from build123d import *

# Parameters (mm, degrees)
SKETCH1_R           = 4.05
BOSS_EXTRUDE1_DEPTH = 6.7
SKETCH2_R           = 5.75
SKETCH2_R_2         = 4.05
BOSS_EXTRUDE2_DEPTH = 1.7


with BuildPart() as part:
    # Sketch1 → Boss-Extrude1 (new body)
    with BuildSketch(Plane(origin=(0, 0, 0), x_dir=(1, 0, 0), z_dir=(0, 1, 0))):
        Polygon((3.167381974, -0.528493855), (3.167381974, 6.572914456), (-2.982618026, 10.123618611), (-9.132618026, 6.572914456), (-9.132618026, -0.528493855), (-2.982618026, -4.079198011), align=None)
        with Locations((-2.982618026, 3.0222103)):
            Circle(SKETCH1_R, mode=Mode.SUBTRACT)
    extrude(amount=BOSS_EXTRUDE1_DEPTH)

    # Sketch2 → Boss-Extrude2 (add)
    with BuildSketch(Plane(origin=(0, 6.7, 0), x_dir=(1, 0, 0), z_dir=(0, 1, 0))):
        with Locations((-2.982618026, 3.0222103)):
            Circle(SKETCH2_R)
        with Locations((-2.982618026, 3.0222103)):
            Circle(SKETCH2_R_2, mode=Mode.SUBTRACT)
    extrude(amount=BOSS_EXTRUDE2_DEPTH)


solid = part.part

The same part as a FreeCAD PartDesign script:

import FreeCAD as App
import Part
import Sketcher

V = App.Vector
Q = App.Units.Quantity

doc = App.newDocument("Part")
body = doc.addObject("PartDesign::Body", "Body")

sketch1 = body.newObject("Sketcher::SketchObject", "Sketch")
sketch1.AttachmentSupport = (doc.getObject("XZ_Plane"), [""])
sketch1.MapMode = "FlatFace"
sketch1.addGeometry([
    Part.LineSegment(V(3.2, 0.5, 0), V(3.2, -6.6, 0)),
    Part.LineSegment(V(3.2, -6.6, 0), V(-3, -10.1, 0)),
    Part.LineSegment(V(-3, -10.1, 0), V(-9.1, -6.6, 0)),
    Part.LineSegment(V(-9.1, -6.6, 0), V(-9.1, 0.5, 0)),
    Part.LineSegment(V(-9.1, 0.5, 0), V(-3, 4.1, 0)),
    Part.LineSegment(V(-3, 4.1, 0), V(3.2, 0.5, 0)),
    Part.Circle(V(-3, -3, 0), V(0, 0, 1), 4),
], False)
sketch1.addConstraint([
    Sketcher.Constraint("Coincident", 0, 2, 1, 1),
    Sketcher.Constraint("Coincident", 1, 2, 2, 1),
    Sketcher.Constraint("Coincident", 2, 2, 3, 1),
    Sketcher.Constraint("Coincident", 3, 2, 4, 1),
    Sketcher.Constraint("Coincident", 4, 2, 5, 1),
    Sketcher.Constraint("Coincident", 5, 2, 0, 1),
    Sketcher.Constraint("Vertical", 0),
    Sketcher.Constraint("Vertical", 3),
    Sketcher.Constraint("Parallel", 1, 4),
    Sketcher.Constraint("Parallel", 2, 5),
    Sketcher.Constraint("Horizontal", 0, 2, 2, 2),
    Sketcher.Constraint("Horizontal", 3, 2, 5, 2),
    Sketcher.Constraint("Vertical", 6, 3, 1, 2),
    Sketcher.Constraint("Vertical", 1, 2, 4, 2),
    Sketcher.Constraint("Diameter", 6, 8.1),
    Sketcher.Constraint("Angle", 1, Q("-150 deg")),
    Sketcher.Constraint("DistanceX", 2, 2, 0, 2, 12.3),
    Sketcher.Constraint("DistanceY", 0, 2, 0, 1, 7.101408),
    Sketcher.Constraint("DistanceY", -1, 1, 4, 2, 4.079198),
    Sketcher.Constraint("DistanceX", 6, 3, -1, 1, 2.982618),
    Sketcher.Constraint("DistanceY", 6, 3, -1, 1, 3.02221),
])
pad1 = body.newObject("PartDesign::Pad", "Pad")
pad1.Profile = sketch1
pad1.Length = 6.7
pad1.Reversed = True

sketch2 = body.newObject("Sketcher::SketchObject", "Sketch001")
sketch2.AttachmentSupport = (doc.getObject("XZ_Plane"), [""])
sketch2.MapMode = "FlatFace"
sketch2.AttachmentOffset = App.Placement(V(0, 0, -6.7), App.Rotation())
sketch2.addGeometry([
    Part.Circle(V(-3, -3, 0), V(0, 0, 1), 5.8),
    Part.Circle(V(-3, -3, 0), V(0, 0, 1), 4),
], False)
sketch2.addConstraint([
    Sketcher.Constraint("Coincident", 1, 3, 0, 3),
    Sketcher.Constraint("Diameter", 0, 11.5),
    Sketcher.Constraint("Diameter", 1, 8.1),
    Sketcher.Constraint("DistanceX", 0, 3, -1, 1, 2.982618),
    Sketcher.Constraint("DistanceY", 0, 3, -1, 1, 3.02221),
])
pad2 = body.newObject("PartDesign::Pad", "Pad001")
pad2.Profile = sketch2
pad2.Length = 1.7
pad2.Reversed = True

doc.recompute()
